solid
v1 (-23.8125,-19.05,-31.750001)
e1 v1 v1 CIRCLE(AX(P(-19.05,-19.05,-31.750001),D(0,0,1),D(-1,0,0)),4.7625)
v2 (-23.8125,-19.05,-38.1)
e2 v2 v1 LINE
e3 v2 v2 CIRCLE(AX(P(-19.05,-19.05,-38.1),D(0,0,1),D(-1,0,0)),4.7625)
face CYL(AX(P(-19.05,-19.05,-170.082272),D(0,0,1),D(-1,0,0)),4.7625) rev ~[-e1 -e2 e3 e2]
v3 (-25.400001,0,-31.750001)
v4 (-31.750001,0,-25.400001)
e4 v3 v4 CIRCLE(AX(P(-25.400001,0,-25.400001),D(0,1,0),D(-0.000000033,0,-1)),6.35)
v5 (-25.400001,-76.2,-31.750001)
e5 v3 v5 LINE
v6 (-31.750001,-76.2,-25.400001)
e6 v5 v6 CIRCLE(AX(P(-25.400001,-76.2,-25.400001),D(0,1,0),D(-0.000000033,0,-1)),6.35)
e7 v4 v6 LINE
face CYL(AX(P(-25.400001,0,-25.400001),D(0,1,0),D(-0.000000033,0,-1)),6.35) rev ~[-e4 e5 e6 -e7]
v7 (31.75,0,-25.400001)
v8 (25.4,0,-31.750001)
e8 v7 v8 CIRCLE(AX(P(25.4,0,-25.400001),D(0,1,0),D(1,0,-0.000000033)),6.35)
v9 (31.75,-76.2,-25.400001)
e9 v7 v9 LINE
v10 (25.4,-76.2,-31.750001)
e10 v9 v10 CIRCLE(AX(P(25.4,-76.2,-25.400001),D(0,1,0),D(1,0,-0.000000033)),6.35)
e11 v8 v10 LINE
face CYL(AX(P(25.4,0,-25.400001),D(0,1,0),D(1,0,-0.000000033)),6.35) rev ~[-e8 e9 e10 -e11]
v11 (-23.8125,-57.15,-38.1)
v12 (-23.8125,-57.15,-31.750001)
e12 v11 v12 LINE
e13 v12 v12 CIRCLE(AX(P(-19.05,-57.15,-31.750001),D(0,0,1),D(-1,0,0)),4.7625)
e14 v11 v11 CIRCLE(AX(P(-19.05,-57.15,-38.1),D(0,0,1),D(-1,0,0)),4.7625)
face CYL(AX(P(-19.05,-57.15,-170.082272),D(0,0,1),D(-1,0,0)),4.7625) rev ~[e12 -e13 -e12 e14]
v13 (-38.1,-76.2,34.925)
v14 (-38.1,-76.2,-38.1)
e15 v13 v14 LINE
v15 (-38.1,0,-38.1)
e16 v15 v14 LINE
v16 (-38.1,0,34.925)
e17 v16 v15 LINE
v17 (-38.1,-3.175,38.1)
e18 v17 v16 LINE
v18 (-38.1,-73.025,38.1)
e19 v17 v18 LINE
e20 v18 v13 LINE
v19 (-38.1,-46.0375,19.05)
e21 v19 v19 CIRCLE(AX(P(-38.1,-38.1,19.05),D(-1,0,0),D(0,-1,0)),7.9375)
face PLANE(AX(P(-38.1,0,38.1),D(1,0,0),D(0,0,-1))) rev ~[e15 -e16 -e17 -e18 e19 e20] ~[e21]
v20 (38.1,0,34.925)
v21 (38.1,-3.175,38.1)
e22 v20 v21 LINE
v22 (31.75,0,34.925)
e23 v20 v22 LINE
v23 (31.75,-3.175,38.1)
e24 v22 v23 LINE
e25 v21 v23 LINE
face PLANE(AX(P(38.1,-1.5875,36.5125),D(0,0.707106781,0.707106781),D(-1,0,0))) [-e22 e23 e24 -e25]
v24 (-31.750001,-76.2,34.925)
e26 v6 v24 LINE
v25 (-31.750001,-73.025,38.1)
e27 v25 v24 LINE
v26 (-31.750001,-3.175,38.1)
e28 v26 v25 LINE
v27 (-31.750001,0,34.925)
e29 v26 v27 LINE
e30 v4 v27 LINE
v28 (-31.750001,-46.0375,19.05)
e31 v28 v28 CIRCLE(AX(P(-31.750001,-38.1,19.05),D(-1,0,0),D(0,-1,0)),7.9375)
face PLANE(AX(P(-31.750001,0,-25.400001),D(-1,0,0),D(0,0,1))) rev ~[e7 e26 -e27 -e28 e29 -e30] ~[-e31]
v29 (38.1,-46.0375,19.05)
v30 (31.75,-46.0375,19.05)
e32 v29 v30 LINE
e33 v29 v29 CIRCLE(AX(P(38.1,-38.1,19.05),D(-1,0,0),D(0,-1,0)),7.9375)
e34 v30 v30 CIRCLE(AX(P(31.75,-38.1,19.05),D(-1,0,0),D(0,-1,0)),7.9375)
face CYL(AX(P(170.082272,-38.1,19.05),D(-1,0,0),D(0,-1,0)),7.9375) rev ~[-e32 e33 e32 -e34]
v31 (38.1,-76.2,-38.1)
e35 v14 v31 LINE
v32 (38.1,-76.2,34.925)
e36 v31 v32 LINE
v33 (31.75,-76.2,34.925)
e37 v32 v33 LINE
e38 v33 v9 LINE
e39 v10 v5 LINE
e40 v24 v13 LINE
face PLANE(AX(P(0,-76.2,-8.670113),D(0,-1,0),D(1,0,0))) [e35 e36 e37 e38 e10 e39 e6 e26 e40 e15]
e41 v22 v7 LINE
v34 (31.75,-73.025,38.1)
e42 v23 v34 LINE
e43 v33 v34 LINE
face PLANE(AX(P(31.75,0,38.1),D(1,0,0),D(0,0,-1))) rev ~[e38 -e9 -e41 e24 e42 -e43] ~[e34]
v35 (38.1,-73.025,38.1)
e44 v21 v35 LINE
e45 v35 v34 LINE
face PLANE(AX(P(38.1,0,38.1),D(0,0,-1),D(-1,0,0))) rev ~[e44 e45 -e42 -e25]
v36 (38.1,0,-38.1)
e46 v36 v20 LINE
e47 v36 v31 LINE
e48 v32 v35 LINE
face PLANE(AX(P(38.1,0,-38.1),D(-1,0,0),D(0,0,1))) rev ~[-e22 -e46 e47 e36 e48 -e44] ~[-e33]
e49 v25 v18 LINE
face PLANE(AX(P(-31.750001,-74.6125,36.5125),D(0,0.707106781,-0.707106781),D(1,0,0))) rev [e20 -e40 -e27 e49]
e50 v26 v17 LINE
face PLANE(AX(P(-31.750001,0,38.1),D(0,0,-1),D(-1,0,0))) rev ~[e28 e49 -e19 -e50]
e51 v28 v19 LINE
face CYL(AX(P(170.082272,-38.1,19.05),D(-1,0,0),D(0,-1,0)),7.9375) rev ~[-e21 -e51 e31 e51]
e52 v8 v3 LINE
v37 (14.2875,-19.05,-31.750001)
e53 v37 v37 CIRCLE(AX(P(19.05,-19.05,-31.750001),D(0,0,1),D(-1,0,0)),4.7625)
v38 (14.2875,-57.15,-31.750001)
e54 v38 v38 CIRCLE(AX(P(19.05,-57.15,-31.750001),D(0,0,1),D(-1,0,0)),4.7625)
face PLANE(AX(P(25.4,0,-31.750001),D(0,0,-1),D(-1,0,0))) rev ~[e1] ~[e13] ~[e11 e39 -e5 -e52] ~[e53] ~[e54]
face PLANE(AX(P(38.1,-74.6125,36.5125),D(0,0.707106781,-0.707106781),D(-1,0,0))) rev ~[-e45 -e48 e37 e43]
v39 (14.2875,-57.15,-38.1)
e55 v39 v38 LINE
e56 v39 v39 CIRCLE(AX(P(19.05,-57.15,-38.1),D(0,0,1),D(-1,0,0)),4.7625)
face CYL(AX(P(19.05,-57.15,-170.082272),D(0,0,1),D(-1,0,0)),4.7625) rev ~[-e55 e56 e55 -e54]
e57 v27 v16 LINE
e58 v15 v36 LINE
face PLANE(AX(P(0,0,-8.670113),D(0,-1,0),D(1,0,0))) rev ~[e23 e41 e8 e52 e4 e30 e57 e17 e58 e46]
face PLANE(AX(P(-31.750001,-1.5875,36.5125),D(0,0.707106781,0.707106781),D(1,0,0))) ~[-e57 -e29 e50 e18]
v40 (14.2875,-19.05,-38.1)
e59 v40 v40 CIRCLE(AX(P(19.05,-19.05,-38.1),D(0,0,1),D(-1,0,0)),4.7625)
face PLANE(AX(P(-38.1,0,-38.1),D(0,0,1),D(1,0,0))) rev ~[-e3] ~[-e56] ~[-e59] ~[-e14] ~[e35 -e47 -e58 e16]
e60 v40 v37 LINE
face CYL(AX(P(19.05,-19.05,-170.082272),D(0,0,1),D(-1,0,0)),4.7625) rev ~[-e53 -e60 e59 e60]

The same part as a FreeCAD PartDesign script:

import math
import FreeCAD as App
import Part
import Sketcher
Q = App.Units.Quantity


def edges_at(feature, points):
    """Names of the edges that pass closest to the given points."""
    edges = feature.Shape.Edges
    near = lambda p: min(range(len(edges)), key=lambda i: edges[i].distToShape(Part.Vertex(*p))[0])
    return sorted({f"Edge{near(p) + 1}" for p in points})

doc = App.newDocument("Part")
body = doc.addObject("PartDesign::Body", "Body")

sketch1 = body.newObject("Sketcher::SketchObject", "Sketch")
sketch1.AttachmentSupport = (doc.getObject("XZ_Plane"), [""])
sketch1.MapMode = "FlatFace"
sketch1.addGeometry(Part.LineSegment(App.Vector(-31.750001, 38.1, 0), App.Vector(-38.1, 38.1, 0)), False)
sketch1.addGeometry(Part.LineSegment(App.Vector(-38.1, 38.1, 0), App.Vector(-38.1, -38.1, 0)), False)
sketch1.addGeometry(Part.LineSegment(App.Vector(-38.1, -38.1, 0), App.Vector(38.1, -38.1, 0)), False)
sketch1.addGeometry(Part.LineSegment(App.Vector(38.1, -38.1, 0), App.Vector(38.1, 38.1, 0)), False)
sketch1.addGeometry(Part.LineSegment(App.Vector(38.1, 38.1, 0), App.Vector(31.75, 38.1, 0)), False)
sketch1.addGeometry(Part.LineSegment(App.Vector(31.75, 38.1, 0), App.Vector(31.75, -25.400001, 0)), False)
sketch1.addGeometry(Part.ArcOfCircle(Part.Circle(App.Vector(25.4, -25.400001, 0), App.Vector(0, 0, 1), 6.35), math.radians(-89.999998), math.radians(-0.000002)), False)
sketch1.addGeometry(Part.LineSegment(App.Vector(25.4, -31.750001, 0), App.Vector(-25.400001, -31.750001, 0)), False)
sketch1.addGeometry(Part.ArcOfCircle(Part.Circle(App.Vector(-25.400001, -25.400001, 0), App.Vector(0, 0, 1), 6.35), math.radians(-179.999998), math.radians(-90.000002)), False)
sketch1.addGeometry(Part.LineSegment(App.Vector(-31.750001, -25.400001, 0), App.Vector(-31.750001, 38.1, 0)), False)
sketch1.addConstraint(Sketcher.Constraint("Coincident", 0, 2, 1, 1))
sketch1.addConstraint(Sketcher.Constraint("Coincident", 1, 2, 2, 1))
sketch1.addConstraint(Sketcher.Constraint("Coincident", 2, 2, 3, 1))
sketch1.addConstraint(Sketcher.Constraint("Coincident", 3, 2, 4, 1))
sketch1.addConstraint(Sketcher.Constraint("Coincident", 4, 2, 5, 1))
sketch1.addConstraint(Sketcher.Constraint("Tangent", 5, 2, 6, 2))
sketch1.addConstraint(Sketcher.Constraint("Tangent", 6, 1, 7, 1))
sketch1.addConstraint(Sketcher.Constraint("Tangent", 7, 2, 8, 2))
sketch1.addConstraint(Sketcher.Constraint("Tangent", 8, 1, 9, 1))
sketch1.addConstraint(Sketcher.Constraint("Coincident", 9, 2, 0, 1))
sketch1.addConstraint(Sketcher.Constraint("Horizontal", 0))
sketch1.addConstraint(Sketcher.Constraint("Vertical", 1))
sketch1.addConstraint(Sketcher.Constraint("Horizontal", 2))
sketch1.addConstraint(Sketcher.Constraint("Vertical", 3))
sketch1.addConstraint(Sketcher.Constraint("Horizontal", 4))
sketch1.addConstraint(Sketcher.Constraint("Vertical", 5))
sketch1.addConstraint(Sketcher.Constraint("Horizontal", 7))
sketch1.addConstraint(Sketcher.Constraint("Vertical", 9))
sketch1.addConstraint(Sketcher.Constraint("Equal", 6, 8))
sketch1.addConstraint(Sketcher.Constraint("Symmetric", 0, 2, 2, 2, -1, 1))
sketch1.addConstraint(Sketcher.Constraint("Symmetric", 4, 2, 9, 2, -2))
sketch1.addConstraint(Sketcher.Constraint("Equal", 2, 1))
sketch1.addConstraint(Sketcher.Constraint("DistanceX", 2, 1, 2, 2, Q("3 in")))
sketch1.addConstraint(Sketcher.Constraint("DistanceX", 7, 2, 7, 1, Q("2 in")))
sketch1.addConstraint(Sketcher.Constraint("Radius", 6, Q("0.25 in")))
sketch1.addConstraint(Sketcher.Constraint("DistanceY", 5, 2, 5, 1, Q("2.5 in")))
pad1 = body.newObject("PartDesign::Pad", "Pad")
pad1.Profile = sketch1
pad1.Length = Q("3 in")

sketch2 = body.newObject("Sketcher::SketchObject", "Sketch001")
sketch2.AttachmentSupport = (doc.getObject("YZ_Plane"), [""])
sketch2.MapMode = "FlatFace"
sketch2.AttachmentOffset = App.Placement(App.Vector(0, 0, 1.5 * 25.4), App.Rotation())
sketch2.addGeometry(Part.Circle(App.Vector(-38.1, 19.05, 0), App.Vector(0, 0, 1), 7.9375), False)
sketch2.addConstraint(Sketcher.Constraint("Diameter", 0, Q("0.625 in")))
sketch2.addConstraint(Sketcher.Constraint("DistanceX", 0, 3, -1, 1, Q("1.5 in")))
sketch2.addConstraint(Sketcher.Constraint("DistanceY", -1, 1, 0, 3, Q("0.75 in")))
doc.recompute()
hole = body.newObject("PartDesign::Hole", "Hole")
hole.Profile = sketch2
hole.ThreadType = "None"
hole.Diameter = Q("0.625 in")
hole.DepthType = "ThroughAll"
doc.recompute()

chamfer = body.newObject("PartDesign::Chamfer", "Chamfer")
chamfer.Base = (hole, edges_at(hole, [
    (-34.925, 0, 38.1),
    (34.925, 0, 38.1),
    (34.925, -76.2, 38.1),
    (-34.925, -76.2, 38.1),
]))
chamfer.Size = Q("0.125 in")

sketch3 = body.newObject("Sketcher::SketchObject", "Sketch002")
sketch3.AttachmentSupport = (doc.getObject("XY_Plane"), [""])
sketch3.MapMode = "FlatFace"
sketch3.AttachmentOffset = App.Placement(App.Vector(0, 0, -1.5 * 25.4), App.Rotation())
sketch3.addGeometry(Part.Circle(App.Vector(-19.05, -57.15, 0), App.Vector(0, 0, 1), 4.7625), False)
sketch3.addGeometry(Part.Circle(App.Vector(19.05, -57.15, 0), App.Vector(0, 0, 1), 4.7625), False)
sketch3.addGeometry(Part.Circle(App.Vector(-19.05, -19.05, 0), App.Vector(0, 0, 1), 4.7625), False)
sketch3.addGeometry(Part.Circle(App.Vector(19.05, -19.05, 0), App.Vector(0, 0, 1), 4.7625), False)
sketch3.addConstraint(Sketcher.Constraint("Equal", 0, 1))
sketch3.addConstraint(Sketcher.Constraint("Equal", 1, 2))
sketch3.addConstraint(Sketcher.Constraint("Equal", 2, 3))
sketch3.addConstraint(Sketcher.Constraint("Symmetric", 0, 3, 1, 3, -2))
sketch3.addConstraint(Sketcher.Constraint("Symmetric", 2, 3, 3, 3, -2))
sketch3.addConstraint(Sketcher.Constraint("Vertical", 0, 3, 2, 3))
sketch3.addConstraint(Sketcher.Constraint("Diameter", 0, Q("0.375 in")))
sketch3.addConstraint(Sketcher.Constraint("DistanceX", 0, 3, 1, 3, Q("1.5 in")))
sketch3.addConstraint(Sketcher.Constraint("DistanceY", 0, 3, 2, 3, Q("1.5 in")))
sketch3.addConstraint(Sketcher.Constraint("DistanceY", 0, 3, -1, 1, Q("2.25 in")))
doc.recompute()
hole2 = body.newObject("PartDesign::Hole", "Hole001")
hole2.Profile = sketch3
hole2.ThreadType = "None"
hole2.Diameter = Q("0.375 in")
hole2.DepthType = "ThroughAll"
hole2.Reversed = True

doc.recompute()
